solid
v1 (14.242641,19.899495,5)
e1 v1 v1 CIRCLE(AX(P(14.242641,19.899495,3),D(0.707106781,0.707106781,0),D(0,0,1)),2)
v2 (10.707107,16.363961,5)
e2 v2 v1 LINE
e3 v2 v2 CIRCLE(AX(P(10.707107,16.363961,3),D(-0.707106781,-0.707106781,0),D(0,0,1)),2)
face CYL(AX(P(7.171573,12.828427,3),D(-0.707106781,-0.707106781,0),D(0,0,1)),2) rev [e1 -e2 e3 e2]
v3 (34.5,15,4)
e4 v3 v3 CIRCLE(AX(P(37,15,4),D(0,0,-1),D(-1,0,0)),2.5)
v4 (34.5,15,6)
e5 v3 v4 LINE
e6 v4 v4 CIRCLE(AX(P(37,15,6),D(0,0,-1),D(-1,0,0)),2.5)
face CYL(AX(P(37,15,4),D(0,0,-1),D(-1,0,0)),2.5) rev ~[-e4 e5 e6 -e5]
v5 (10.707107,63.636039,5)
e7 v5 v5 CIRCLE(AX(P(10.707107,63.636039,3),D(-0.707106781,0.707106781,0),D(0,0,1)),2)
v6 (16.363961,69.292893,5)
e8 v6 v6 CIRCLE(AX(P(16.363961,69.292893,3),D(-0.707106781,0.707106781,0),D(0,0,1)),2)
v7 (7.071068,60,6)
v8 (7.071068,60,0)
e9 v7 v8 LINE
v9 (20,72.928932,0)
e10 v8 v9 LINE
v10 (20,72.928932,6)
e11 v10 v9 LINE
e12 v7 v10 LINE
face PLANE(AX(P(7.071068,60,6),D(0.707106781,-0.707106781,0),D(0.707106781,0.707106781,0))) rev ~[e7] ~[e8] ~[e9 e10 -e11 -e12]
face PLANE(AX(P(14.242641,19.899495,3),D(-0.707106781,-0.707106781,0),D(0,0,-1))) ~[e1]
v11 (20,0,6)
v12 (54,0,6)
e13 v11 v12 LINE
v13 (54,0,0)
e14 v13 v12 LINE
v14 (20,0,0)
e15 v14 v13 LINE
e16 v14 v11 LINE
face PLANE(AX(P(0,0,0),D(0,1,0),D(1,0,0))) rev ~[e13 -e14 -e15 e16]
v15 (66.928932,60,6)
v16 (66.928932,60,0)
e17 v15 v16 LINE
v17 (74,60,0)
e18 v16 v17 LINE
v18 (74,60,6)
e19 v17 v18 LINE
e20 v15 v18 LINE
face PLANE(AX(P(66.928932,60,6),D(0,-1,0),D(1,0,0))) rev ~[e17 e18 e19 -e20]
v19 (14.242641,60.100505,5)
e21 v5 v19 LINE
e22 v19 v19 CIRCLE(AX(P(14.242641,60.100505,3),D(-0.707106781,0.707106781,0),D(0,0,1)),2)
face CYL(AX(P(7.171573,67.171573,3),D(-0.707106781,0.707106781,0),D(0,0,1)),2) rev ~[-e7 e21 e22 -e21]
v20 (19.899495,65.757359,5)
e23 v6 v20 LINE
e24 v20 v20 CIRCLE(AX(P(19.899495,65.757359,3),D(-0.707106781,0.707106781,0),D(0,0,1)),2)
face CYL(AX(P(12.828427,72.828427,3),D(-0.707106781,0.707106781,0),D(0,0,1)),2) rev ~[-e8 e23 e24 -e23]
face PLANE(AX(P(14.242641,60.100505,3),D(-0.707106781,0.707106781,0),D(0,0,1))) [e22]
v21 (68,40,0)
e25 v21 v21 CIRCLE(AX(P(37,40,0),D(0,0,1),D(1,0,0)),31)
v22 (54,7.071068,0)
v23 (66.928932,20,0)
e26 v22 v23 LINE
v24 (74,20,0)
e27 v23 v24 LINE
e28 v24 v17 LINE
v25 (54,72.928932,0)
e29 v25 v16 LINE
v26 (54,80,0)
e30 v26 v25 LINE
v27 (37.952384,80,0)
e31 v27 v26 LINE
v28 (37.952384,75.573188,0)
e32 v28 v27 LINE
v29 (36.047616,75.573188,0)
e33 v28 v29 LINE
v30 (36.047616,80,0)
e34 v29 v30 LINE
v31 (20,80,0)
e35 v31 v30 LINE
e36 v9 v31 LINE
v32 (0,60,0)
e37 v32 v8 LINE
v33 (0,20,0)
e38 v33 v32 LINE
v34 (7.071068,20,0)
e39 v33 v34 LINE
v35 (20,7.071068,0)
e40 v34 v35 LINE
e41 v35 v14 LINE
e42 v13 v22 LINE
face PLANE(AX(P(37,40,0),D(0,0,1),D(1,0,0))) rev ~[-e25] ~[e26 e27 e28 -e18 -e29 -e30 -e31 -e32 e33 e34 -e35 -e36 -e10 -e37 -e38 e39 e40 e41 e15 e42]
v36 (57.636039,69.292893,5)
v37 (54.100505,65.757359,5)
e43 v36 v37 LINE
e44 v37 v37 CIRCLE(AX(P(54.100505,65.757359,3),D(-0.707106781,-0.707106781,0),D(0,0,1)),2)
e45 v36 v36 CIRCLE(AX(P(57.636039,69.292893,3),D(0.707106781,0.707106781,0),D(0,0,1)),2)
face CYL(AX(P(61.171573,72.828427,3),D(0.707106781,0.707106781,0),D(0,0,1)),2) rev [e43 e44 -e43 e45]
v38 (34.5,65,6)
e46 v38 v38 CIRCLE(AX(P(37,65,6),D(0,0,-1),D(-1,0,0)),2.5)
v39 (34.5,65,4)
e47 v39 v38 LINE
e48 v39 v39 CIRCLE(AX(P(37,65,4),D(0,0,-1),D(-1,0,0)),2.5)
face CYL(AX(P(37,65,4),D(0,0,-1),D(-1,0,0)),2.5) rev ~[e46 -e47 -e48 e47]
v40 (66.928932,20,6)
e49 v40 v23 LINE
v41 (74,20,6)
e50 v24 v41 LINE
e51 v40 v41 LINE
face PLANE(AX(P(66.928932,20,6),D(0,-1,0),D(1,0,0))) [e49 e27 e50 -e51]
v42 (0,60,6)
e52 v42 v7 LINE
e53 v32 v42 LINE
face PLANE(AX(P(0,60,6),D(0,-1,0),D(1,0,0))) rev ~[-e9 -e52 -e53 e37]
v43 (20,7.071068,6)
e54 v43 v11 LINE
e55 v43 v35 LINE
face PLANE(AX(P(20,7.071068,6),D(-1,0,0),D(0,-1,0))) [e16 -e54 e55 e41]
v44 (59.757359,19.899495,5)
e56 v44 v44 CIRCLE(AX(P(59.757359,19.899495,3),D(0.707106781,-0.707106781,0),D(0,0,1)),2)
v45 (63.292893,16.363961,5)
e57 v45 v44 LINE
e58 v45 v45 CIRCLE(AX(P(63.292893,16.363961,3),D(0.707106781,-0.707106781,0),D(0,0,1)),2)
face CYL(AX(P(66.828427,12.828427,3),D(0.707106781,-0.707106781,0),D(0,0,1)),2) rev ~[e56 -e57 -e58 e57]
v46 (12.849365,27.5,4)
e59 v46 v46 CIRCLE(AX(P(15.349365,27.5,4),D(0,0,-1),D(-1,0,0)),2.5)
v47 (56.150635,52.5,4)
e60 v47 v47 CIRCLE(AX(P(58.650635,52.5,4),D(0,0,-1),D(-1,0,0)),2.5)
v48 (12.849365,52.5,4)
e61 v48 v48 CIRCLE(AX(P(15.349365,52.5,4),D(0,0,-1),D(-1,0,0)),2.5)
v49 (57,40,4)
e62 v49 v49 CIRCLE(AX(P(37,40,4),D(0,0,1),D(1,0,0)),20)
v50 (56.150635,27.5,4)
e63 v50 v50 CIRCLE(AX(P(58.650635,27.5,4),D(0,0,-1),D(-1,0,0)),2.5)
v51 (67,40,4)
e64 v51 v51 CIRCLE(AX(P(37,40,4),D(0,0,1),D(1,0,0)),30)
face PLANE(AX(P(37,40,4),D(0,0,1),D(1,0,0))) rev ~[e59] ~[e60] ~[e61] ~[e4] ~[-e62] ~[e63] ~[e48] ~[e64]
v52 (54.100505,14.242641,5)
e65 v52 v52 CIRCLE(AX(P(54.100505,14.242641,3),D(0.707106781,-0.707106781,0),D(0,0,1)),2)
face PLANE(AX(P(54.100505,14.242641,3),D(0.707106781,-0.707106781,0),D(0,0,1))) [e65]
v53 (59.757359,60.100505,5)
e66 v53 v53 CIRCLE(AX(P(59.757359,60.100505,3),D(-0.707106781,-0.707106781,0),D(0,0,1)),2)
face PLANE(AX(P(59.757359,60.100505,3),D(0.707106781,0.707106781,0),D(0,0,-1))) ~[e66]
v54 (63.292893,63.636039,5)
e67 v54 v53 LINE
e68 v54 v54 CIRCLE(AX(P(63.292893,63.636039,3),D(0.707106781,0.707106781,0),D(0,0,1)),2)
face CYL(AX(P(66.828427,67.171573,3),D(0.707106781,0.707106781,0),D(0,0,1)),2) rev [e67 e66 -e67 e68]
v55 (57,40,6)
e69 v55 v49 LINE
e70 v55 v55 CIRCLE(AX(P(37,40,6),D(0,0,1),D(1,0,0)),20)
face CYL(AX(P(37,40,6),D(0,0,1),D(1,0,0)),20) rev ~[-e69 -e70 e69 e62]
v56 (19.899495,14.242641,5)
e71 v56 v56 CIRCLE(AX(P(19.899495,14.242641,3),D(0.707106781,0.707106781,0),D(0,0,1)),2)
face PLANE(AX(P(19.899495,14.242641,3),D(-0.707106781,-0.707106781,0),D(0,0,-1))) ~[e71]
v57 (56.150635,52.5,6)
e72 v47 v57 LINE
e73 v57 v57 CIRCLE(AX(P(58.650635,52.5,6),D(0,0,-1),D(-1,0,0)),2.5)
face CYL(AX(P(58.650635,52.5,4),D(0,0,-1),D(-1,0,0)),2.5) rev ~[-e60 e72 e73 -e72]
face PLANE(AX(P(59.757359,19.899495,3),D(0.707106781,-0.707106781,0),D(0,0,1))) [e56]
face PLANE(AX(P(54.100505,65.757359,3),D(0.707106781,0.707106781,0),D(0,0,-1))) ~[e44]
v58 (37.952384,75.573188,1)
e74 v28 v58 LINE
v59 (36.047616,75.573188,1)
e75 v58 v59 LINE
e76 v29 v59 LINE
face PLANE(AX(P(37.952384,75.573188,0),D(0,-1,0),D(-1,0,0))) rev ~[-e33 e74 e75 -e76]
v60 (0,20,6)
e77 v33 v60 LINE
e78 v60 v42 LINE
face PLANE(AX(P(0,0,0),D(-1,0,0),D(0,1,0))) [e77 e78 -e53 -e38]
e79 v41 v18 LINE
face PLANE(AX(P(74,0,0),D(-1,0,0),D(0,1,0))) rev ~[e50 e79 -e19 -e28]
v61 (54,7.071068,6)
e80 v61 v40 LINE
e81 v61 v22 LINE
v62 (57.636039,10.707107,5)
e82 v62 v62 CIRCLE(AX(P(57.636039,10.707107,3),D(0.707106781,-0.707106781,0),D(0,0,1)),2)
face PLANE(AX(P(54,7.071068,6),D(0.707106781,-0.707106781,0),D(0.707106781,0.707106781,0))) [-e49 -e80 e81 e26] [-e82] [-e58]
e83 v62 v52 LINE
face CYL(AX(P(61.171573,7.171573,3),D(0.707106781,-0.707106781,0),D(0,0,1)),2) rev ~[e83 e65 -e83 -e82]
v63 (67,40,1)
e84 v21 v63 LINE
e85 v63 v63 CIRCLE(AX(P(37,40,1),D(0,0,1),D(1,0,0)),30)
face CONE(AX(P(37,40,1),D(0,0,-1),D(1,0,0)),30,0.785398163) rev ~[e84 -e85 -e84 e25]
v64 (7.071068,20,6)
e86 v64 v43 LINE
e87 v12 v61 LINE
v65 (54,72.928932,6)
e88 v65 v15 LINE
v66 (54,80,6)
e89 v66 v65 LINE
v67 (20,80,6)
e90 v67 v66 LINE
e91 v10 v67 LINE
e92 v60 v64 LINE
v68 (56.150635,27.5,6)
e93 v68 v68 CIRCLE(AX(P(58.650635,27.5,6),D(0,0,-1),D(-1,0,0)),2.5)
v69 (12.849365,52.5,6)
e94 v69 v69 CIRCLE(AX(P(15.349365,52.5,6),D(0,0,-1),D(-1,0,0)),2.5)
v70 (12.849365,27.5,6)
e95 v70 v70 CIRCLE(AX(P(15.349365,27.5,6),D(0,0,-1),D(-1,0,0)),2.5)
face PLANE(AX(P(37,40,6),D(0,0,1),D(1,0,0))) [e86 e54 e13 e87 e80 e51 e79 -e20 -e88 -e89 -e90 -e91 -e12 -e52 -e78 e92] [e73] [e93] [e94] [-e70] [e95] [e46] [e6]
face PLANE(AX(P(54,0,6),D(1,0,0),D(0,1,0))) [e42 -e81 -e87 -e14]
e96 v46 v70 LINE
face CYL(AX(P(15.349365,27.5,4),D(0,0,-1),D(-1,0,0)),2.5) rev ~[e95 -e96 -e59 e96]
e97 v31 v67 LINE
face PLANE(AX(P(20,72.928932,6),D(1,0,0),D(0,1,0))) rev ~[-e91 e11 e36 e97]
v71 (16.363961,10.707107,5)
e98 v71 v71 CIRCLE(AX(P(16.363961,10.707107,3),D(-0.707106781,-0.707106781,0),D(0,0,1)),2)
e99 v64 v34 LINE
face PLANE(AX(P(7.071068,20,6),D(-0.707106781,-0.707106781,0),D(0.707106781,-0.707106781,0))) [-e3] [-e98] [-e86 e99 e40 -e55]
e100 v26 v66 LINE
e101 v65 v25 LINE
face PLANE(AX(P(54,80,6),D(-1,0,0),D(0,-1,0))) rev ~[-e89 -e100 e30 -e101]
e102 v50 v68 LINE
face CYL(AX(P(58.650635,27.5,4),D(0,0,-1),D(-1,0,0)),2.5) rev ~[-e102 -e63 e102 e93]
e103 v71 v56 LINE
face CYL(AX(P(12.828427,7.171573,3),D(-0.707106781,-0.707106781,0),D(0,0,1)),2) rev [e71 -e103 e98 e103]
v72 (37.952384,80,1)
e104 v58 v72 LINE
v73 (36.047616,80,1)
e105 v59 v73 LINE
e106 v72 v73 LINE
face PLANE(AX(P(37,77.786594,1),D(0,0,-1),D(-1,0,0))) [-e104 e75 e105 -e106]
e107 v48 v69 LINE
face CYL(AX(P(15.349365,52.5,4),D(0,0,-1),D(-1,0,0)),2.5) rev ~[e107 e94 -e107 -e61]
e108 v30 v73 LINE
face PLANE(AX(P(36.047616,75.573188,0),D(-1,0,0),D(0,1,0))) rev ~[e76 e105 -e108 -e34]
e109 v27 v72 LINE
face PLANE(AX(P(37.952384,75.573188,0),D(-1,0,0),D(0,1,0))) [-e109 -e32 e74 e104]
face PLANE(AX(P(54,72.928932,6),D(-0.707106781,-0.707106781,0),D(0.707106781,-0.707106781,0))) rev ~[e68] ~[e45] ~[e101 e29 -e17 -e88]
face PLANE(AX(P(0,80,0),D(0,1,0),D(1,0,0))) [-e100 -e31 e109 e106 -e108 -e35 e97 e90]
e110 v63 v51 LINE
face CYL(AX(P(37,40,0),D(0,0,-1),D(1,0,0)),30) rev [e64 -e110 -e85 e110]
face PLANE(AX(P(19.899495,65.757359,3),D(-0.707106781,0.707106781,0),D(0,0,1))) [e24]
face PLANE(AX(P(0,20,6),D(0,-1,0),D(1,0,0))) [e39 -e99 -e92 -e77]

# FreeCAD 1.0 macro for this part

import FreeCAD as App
import Part
import Sketcher
from FreeCAD import Vector
Q = App.Units.Quantity


def edges_at(feature, points):
    """Names of the edges that pass closest to the given points."""
    edges = feature.Shape.Edges
    near = lambda p: min(range(len(edges)), key=lambda i: edges[i].distToShape(Part.Vertex(*p))[0])
    return sorted({f"Edge{near(p) + 1}" for p in points})


def add_polygon(sketch, points):
    """Adds a closed chain of lines whose ends are joined by coincident constraints."""
    first, n = sketch.GeometryCount, len(points)
    for a, b in zip(points, points[1:] + points[:1]):
        sketch.addGeometry(Part.LineSegment(App.Vector(*a, 0), App.Vector(*b, 0)), False)
    for i in range(n):
        sketch.addConstraint(Sketcher.Constraint("Coincident", first + i, 2, first + (i + 1) % n, 1))

doc = App.newDocument("Part")
params = doc.addObject("Spreadsheet::Sheet", "Params")
for row, (alias, value) in enumerate([
    ("sketch1_diameter", "60 mm"),
    ("sketch1_width", "74 mm"),
    ("sketch1_height", "80 mm"),
    ("pad1_length", "6 mm"),
    ("sketch2_diameter", "60 mm"),
    ("sketch2_diameter2", "40 mm"),
    ("pad2_length", "2 mm"),
    ("sketch3_diameter", "5 mm"),
    ("pocket1_length", "2 mm"),
    ("chamfer_size", "20 mm"),
    ("sketch4_diameter", "4 mm"),
    ("pocket2_length", "10 mm"),
    ("sketch5_diameter", "4 mm"),
    ("pocket3_length", "10 mm"),
    ("chamfer2_size", "1 mm"),
    ("pocket4_length", "1 mm"),
], start=1):
    params.set(f"A{row}", alias)
    params.set(f"B{row}", "=" + value)
    params.setAlias(f"B{row}", alias)

body = doc.addObject("PartDesign::Body", "Body")

sketch1 = body.newObject("Sketcher::SketchObject", "Sketch")
sketch1.AttachmentSupport = (doc.getObject("XY_Plane"), [""])
sketch1.MapMode = "FlatFace"
add_polygon(sketch1, [(0, 80), (0, 0), (74, 0), (74, 80)])
sketch1.addGeometry(Part.Circle(Vector(37, 40, 0), Vector(0, 0, 1), 30), False)
sketch1.addConstraint([
    Sketcher.Constraint("Vertical", 0),
    Sketcher.Constraint("Horizontal", 1),
    Sketcher.Constraint("Vertical", 2),
    Sketcher.Constraint("Horizontal", 3),
    Sketcher.Constraint("Coincident", 0, 2, -1, 1),
    Sketcher.Constraint("Diameter", 4, Q("60 mm")),
    Sketcher.Constraint("DistanceX", 1, 1, 1, 2, Q("74 mm")),
    Sketcher.Constraint("DistanceY", 0, 2, 0, 1, Q("80 mm")),
    Sketcher.Constraint("DistanceX", -1, 1, 4, 3, Q("37 mm")),
    Sketcher.Constraint("DistanceY", -1, 1, 4, 3, Q("40 mm")),
])
sketch1.setExpression("Constraints[9]", "Params.sketch1_diameter")
sketch1.setExpression("Constraints[10]", "Params.sketch1_width")
sketch1.setExpression("Constraints[11]", "Params.sketch1_height")
pad1 = body.newObject("PartDesign::Pad", "Pad")
pad1.Profile = sketch1
pad1.setExpression("Length", "Params.pad1_length")

sketch2 = body.newObject("Sketcher::SketchObject", "Sketch001")
sketch2.AttachmentSupport = (doc.getObject("XY_Plane"), [""])
sketch2.MapMode = "FlatFace"
sketch2.AttachmentOffset = App.Placement(Vector(0, 0, 6), App.Rotation())
sketch2.addGeometry([
    Part.Circle(Vector(37, 40, 0), Vector(0, 0, 1), 30),
    Part.Circle(Vector(37, 40, 0), Vector(0, 0, 1), 20),
], False)
sketch2.addConstraint([
    Sketcher.Constraint("Coincident", 1, 3, 0, 3),
    Sketcher.Constraint("Diameter", 0, Q("60 mm")),
    Sketcher.Constraint("Diameter", 1, Q("40 mm")),
    Sketcher.Constraint("DistanceX", -1, 1, 0, 3, Q("37 mm")),
    Sketcher.Constraint("DistanceY", -1, 1, 0, 3, Q("40 mm")),
])
sketch2.setExpression("Constraints[1]", "Params.sketch2_diameter")
sketch2.setExpression("Constraints[2]", "Params.sketch2_diameter2")
pad2 = body.newObject("PartDesign::Pad", "Pad001")
pad2.Profile = sketch2
pad2.setExpression("Length", "Params.pad2_length")
pad2.Reversed = True

sketch3 = body.newObject("Sketcher::SketchObject", "Sketch002")
sketch3.AttachmentSupport = (doc.getObject("XY_Plane"), [""])
sketch3.MapMode = "FlatFace"
sketch3.AttachmentOffset = App.Placement(Vector(0, 0, 4), App.Rotation())
sketch3.addGeometry([
    Part.Circle(Vector(37, 65, 0), Vector(0, 0, 1), 2.5),
    Part.Circle(Vector(15.3, 52.5, 0), Vector(0, 0, 1), 2.5),
    Part.Circle(Vector(15.3, 27.5, 0), Vector(0, 0, 1), 2.5),
    Part.Circle(Vector(37, 15, 0), Vector(0, 0, 1), 2.5),
    Part.Circle(Vector(58.7, 27.5, 0), Vector(0, 0, 1), 2.5),
    Part.Circle(Vector(58.7, 52.5, 0), Vector(0, 0, 1), 2.5),
], False)
sketch3.addConstraint([
    Sketcher.Constraint("Equal", 0, 1),
    Sketcher.Constraint("Equal", 1, 2),
    Sketcher.Constraint("Equal", 2, 3),
    Sketcher.Constraint("Equal", 3, 4),
    Sketcher.Constraint("Equal", 4, 5),
    Sketcher.Constraint("Horizontal", 2, 3, 4, 3),
    Sketcher.Constraint("Horizontal", 1, 3, 5, 3),
    Sketcher.Constraint("Vertical", 1, 3, 2, 3),
    Sketcher.Constraint("Vertical", 0, 3, 3, 3),
    Sketcher.Constraint("Vertical", 4, 3, 5, 3),
    Sketcher.Constraint("Diameter", 0, Q("5 mm")),
    Sketcher.Constraint("DistanceX", -1, 1, 0, 3, Q("37 mm")),
    Sketcher.Constraint("DistanceY", -1, 1, 0, 3, Q("65 mm")),
    Sketcher.Constraint("DistanceY", -1, 1, 3, 3, Q("15 mm")),
    Sketcher.Constraint("DistanceY", 2, 3, 1, 3, Q("25 mm")),
    Sketcher.Constraint("DistanceY", -1, 1, 1, 3, Q("52.5 mm")),
    Sketcher.Constraint("DistanceX", 2, 3, 4, 3, Q("43.30127 mm")),
    Sketcher.Constraint("DistanceX", -1, 1, 1, 3, Q("15.349365 mm")),
])
sketch3.setExpression("Constraints[10]", "Params.sketch3_diameter")
pocket1 = body.newObject("PartDesign::Pocket", "Pocket")
pocket1.Profile = sketch3
pocket1.setExpression("Length", "Params.pocket1_length")
pocket1.Reversed = True
doc.recompute()

chamfer = body.newObject("PartDesign::Chamfer", "Chamfer")
chamfer.Base = (pocket1, edges_at(pocket1, [
    (0, 80, 3),
    (74, 80, 3),
    (74, 0, 3),
    (0, 0, 3),
]))
chamfer.setExpression("Size", "Params.chamfer_size")

sketch4 = body.newObject("Sketcher::SketchObject", "Sketch003")
sketch4.Placement = App.Placement(Vector(-30, 30, 0), App.Rotation(Vector(0, 0, 1), Vector(0.707106781, 0.707106781, 0), Vector(-0.707106781, 0.707106781, 0), "ZXY"))
sketch4.addGeometry([
    Part.Circle(Vector(3, 60.6, 0), Vector(0, 0, 1), 2),
    Part.Circle(Vector(3, 52.6, 0), Vector(0, 0, 1), 2),
], False)
sketch4.addConstraint([
    Sketcher.Constraint("Equal", 0, 1),
    Sketcher.Constraint("Vertical", 0, 3, 1, 3),
    Sketcher.Constraint("Diameter", 0, Q("4 mm")),
    Sketcher.Constraint("DistanceX", -1, 1, 0, 3, Q("3 mm")),
    Sketcher.Constraint("DistanceY", 1, 3, 0, 3, Q("8 mm")),
    Sketcher.Constraint("DistanceY", -1, 1, 0, 3, Q("60.568542 mm")),
])
sketch4.setExpression("Constraints[2]", "Params.sketch4_diameter")
pocket2 = body.newObject("PartDesign::Pocket", "Pocket001")
pocket2.Profile = sketch4
pocket2.setExpression("Length", "Params.pocket2_length")
doc.recompute()

datumplane = body.newObject("PartDesign::Plane", "DatumPlane")
datumplane.AttachmentSupport = (doc.getObject("YZ_Plane"), [""])
datumplane.MapMode = "FlatFace"
datumplane.AttachmentOffset = App.Placement(Vector(0, 0, 37), App.Rotation())
mirrored = body.newObject("PartDesign::Mirrored", "Mirrored")
mirrored.Originals = [pocket2]
mirrored.MirrorPlane = (datumplane, [""])
body.Tip = mirrored
doc.recompute()

datumplane2 = body.newObject("PartDesign::Plane", "DatumPlane001")
datumplane2.AttachmentSupport = (doc.getObject("XZ_Plane"), [""])
datumplane2.MapMode = "FlatFace"
datumplane2.AttachmentOffset = App.Placement(Vector(0, 0, -40), App.Rotation())
mirrored2 = body.newObject("PartDesign::Mirrored", "Mirrored001")
mirrored2.Originals = [pocket2]
mirrored2.MirrorPlane = (datumplane2, [""])
body.Tip = mirrored2

sketch5 = body.newObject("Sketcher::SketchObject", "Sketch004")
sketch5.Placement = App.Placement(Vector(104, 50, 0), App.Rotation(Vector(0, 0, 1), Vector(-0.707106781, -0.707106781, 0), Vector(0.707106781, -0.707106781, 0), "ZXY"))
sketch5.addGeometry([
    Part.Circle(Vector(3, 60.6, 0), Vector(0, 0, 1), 2),
    Part.Circle(Vector(3, 52.6, 0), Vector(0, 0, 1), 2),
], False)
sketch5.addConstraint([
    Sketcher.Constraint("Equal", 0, 1),
    Sketcher.Constraint("Vertical", 0, 3, 1, 3),
    Sketcher.Constraint("Diameter", 0, Q("4 mm")),
    Sketcher.Constraint("DistanceX", -1, 1, 0, 3, Q("3 mm")),
    Sketcher.Constraint("DistanceY", 1, 3, 0, 3, Q("8 mm")),
    Sketcher.Constraint("DistanceY", -1, 1, 0, 3, Q("60.568542 mm")),
])
sketch5.setExpression("Constraints[2]", "Params.sketch5_diameter")
pocket3 = body.newObject("PartDesign::Pocket", "Pocket002")
pocket3.Profile = sketch5
pocket3.setExpression("Length", "Params.pocket3_length")
doc.recompute()

chamfer2 = body.newObject("PartDesign::Chamfer", "Chamfer001")
chamfer2.Base = (pocket3, edges_at(pocket3, [(7, 40, 0)]))
chamfer2.setExpression("Size", "Params.chamfer2_size")

sketch6 = body.newObject("Sketcher::SketchObject", "Sketch005")
sketch6.AttachmentSupport = (doc.getObject("XY_Plane"), [""])
sketch6.MapMode = "FlatFace"
add_polygon(sketch6, [(38, 80), (38, 75.6), (36, 75.6), (36, 80)])
sketch6.addConstraint([
    Sketcher.Constraint("Vertical", 0),
    Sketcher.Constraint("Horizontal", 1),
    Sketcher.Constraint("Vertical", 2),
    Sketcher.Constraint("Horizontal", 3),
    Sketcher.Constraint("DistanceY", -1, 1, 2, 2, Q("80 mm")),
    Sketcher.Constraint("DistanceX", 1, 2, 1, 1, Q("1.904768 mm")),
    Sketcher.Constraint("DistanceY", 0, 2, 0, 1, Q("4.426812 mm")),
    Sketcher.Constraint("DistanceX", -1, 1, 0, 2, Q("37.952384 mm")),
])
pocket4 = body.newObject("PartDesign::Pocket", "Pocket003")
pocket4.Profile = sketch6
pocket4.setExpression("Length", "Params.pocket4_length")
pocket4.Reversed = True

sketch7 = body.newObject("Sketcher::SketchObject", "Sketch006")
sketch7.AttachmentSupport = (doc.getObject("XY_Plane"), [""])
sketch7.MapMode = "FlatFace"
sketch7.AttachmentOffset = App.Placement(Vector(0, 0, 6), App.Rotation())
add_polygon(sketch7, [(0, 60), (7, 60), (20, 73), (20, 80)])
add_polygon(sketch7, [(54, 80), (54, 73), (67, 60), (74, 60)])
add_polygon(sketch7, [(74, 20), (67, 20), (54, 7), (54, 0)])
add_polygon(sketch7, [(7, 20), (0, 20), (20, 0), (20, 7)])
sketch7.addConstraint([
    Sketcher.Constraint("Horizontal", 0),
    Sketcher.Constraint("Vertical", 2),
    Sketcher.Constraint("Vertical", 4),
    Sketcher.Constraint("Horizontal", 6),
    Sketcher.Constraint("Horizontal", 8),
    Sketcher.Constraint("Vertical", 10),
    Sketcher.Constraint("Horizontal", 12),
    Sketcher.Constraint("Vertical", 14),
    Sketcher.Constraint("PointOnObject", 3, 2, -2),
    Sketcher.Constraint("PointOnObject", 10, 2, -1),
    Sketcher.Constraint("PointOnObject", 12, 2, -2),
    Sketcher.Constraint("PointOnObject", 13, 2, -1),
    Sketcher.Constraint("Parallel", 1, 3),
    Sketcher.Constraint("Perpendicular", 3, 5),
    Sketcher.Constraint("Parallel", 5, 7),
    Sketcher.Constraint("Perpendicular", 7, 9),
    Sketcher.Constraint("Parallel", 9, 11),
    Sketcher.Constraint("Perpendicular", 11, 13),
    Sketcher.Constraint("Parallel", 13, 15),
    Sketcher.Constraint("Horizontal", 1, 2, 4, 2),
    Sketcher.Constraint("Horizontal", 3, 2, 5, 2),
    Sketcher.Constraint("Horizontal", 2, 2, 7, 2),
    Sketcher.Constraint("Horizontal", 11, 2, 12, 2),
    Sketcher.Constraint("Horizontal", 9, 2, 14, 2),
    Sketcher.Constraint("Vertical", 5, 2, 8, 2),
    Sketcher.Constraint("Vertical", 7, 2, 9, 2),
    Sketcher.Constraint("Vertical", 6, 2, 11, 2),
    Sketcher.Constraint("Vertical", 2, 2, 13, 2),
    Sketcher.Constraint("DistanceY", -1, 1, 0, 2, Q("60 mm")),
    Sketcher.Constraint("DistanceX", -1, 1, 1, 2, Q("20 mm")),
    Sketcher.Constraint("DistanceX", -1, 1, 4, 2, Q("54 mm")),
    Sketcher.Constraint("Distance", 1, Q("18.284271 mm")),
])
pocket5 = body.newObject("PartDesign::Pocket", "Pocket004")
pocket5.Profile = sketch7
pocket5.Type = "ThroughAll"

doc.recompute()
